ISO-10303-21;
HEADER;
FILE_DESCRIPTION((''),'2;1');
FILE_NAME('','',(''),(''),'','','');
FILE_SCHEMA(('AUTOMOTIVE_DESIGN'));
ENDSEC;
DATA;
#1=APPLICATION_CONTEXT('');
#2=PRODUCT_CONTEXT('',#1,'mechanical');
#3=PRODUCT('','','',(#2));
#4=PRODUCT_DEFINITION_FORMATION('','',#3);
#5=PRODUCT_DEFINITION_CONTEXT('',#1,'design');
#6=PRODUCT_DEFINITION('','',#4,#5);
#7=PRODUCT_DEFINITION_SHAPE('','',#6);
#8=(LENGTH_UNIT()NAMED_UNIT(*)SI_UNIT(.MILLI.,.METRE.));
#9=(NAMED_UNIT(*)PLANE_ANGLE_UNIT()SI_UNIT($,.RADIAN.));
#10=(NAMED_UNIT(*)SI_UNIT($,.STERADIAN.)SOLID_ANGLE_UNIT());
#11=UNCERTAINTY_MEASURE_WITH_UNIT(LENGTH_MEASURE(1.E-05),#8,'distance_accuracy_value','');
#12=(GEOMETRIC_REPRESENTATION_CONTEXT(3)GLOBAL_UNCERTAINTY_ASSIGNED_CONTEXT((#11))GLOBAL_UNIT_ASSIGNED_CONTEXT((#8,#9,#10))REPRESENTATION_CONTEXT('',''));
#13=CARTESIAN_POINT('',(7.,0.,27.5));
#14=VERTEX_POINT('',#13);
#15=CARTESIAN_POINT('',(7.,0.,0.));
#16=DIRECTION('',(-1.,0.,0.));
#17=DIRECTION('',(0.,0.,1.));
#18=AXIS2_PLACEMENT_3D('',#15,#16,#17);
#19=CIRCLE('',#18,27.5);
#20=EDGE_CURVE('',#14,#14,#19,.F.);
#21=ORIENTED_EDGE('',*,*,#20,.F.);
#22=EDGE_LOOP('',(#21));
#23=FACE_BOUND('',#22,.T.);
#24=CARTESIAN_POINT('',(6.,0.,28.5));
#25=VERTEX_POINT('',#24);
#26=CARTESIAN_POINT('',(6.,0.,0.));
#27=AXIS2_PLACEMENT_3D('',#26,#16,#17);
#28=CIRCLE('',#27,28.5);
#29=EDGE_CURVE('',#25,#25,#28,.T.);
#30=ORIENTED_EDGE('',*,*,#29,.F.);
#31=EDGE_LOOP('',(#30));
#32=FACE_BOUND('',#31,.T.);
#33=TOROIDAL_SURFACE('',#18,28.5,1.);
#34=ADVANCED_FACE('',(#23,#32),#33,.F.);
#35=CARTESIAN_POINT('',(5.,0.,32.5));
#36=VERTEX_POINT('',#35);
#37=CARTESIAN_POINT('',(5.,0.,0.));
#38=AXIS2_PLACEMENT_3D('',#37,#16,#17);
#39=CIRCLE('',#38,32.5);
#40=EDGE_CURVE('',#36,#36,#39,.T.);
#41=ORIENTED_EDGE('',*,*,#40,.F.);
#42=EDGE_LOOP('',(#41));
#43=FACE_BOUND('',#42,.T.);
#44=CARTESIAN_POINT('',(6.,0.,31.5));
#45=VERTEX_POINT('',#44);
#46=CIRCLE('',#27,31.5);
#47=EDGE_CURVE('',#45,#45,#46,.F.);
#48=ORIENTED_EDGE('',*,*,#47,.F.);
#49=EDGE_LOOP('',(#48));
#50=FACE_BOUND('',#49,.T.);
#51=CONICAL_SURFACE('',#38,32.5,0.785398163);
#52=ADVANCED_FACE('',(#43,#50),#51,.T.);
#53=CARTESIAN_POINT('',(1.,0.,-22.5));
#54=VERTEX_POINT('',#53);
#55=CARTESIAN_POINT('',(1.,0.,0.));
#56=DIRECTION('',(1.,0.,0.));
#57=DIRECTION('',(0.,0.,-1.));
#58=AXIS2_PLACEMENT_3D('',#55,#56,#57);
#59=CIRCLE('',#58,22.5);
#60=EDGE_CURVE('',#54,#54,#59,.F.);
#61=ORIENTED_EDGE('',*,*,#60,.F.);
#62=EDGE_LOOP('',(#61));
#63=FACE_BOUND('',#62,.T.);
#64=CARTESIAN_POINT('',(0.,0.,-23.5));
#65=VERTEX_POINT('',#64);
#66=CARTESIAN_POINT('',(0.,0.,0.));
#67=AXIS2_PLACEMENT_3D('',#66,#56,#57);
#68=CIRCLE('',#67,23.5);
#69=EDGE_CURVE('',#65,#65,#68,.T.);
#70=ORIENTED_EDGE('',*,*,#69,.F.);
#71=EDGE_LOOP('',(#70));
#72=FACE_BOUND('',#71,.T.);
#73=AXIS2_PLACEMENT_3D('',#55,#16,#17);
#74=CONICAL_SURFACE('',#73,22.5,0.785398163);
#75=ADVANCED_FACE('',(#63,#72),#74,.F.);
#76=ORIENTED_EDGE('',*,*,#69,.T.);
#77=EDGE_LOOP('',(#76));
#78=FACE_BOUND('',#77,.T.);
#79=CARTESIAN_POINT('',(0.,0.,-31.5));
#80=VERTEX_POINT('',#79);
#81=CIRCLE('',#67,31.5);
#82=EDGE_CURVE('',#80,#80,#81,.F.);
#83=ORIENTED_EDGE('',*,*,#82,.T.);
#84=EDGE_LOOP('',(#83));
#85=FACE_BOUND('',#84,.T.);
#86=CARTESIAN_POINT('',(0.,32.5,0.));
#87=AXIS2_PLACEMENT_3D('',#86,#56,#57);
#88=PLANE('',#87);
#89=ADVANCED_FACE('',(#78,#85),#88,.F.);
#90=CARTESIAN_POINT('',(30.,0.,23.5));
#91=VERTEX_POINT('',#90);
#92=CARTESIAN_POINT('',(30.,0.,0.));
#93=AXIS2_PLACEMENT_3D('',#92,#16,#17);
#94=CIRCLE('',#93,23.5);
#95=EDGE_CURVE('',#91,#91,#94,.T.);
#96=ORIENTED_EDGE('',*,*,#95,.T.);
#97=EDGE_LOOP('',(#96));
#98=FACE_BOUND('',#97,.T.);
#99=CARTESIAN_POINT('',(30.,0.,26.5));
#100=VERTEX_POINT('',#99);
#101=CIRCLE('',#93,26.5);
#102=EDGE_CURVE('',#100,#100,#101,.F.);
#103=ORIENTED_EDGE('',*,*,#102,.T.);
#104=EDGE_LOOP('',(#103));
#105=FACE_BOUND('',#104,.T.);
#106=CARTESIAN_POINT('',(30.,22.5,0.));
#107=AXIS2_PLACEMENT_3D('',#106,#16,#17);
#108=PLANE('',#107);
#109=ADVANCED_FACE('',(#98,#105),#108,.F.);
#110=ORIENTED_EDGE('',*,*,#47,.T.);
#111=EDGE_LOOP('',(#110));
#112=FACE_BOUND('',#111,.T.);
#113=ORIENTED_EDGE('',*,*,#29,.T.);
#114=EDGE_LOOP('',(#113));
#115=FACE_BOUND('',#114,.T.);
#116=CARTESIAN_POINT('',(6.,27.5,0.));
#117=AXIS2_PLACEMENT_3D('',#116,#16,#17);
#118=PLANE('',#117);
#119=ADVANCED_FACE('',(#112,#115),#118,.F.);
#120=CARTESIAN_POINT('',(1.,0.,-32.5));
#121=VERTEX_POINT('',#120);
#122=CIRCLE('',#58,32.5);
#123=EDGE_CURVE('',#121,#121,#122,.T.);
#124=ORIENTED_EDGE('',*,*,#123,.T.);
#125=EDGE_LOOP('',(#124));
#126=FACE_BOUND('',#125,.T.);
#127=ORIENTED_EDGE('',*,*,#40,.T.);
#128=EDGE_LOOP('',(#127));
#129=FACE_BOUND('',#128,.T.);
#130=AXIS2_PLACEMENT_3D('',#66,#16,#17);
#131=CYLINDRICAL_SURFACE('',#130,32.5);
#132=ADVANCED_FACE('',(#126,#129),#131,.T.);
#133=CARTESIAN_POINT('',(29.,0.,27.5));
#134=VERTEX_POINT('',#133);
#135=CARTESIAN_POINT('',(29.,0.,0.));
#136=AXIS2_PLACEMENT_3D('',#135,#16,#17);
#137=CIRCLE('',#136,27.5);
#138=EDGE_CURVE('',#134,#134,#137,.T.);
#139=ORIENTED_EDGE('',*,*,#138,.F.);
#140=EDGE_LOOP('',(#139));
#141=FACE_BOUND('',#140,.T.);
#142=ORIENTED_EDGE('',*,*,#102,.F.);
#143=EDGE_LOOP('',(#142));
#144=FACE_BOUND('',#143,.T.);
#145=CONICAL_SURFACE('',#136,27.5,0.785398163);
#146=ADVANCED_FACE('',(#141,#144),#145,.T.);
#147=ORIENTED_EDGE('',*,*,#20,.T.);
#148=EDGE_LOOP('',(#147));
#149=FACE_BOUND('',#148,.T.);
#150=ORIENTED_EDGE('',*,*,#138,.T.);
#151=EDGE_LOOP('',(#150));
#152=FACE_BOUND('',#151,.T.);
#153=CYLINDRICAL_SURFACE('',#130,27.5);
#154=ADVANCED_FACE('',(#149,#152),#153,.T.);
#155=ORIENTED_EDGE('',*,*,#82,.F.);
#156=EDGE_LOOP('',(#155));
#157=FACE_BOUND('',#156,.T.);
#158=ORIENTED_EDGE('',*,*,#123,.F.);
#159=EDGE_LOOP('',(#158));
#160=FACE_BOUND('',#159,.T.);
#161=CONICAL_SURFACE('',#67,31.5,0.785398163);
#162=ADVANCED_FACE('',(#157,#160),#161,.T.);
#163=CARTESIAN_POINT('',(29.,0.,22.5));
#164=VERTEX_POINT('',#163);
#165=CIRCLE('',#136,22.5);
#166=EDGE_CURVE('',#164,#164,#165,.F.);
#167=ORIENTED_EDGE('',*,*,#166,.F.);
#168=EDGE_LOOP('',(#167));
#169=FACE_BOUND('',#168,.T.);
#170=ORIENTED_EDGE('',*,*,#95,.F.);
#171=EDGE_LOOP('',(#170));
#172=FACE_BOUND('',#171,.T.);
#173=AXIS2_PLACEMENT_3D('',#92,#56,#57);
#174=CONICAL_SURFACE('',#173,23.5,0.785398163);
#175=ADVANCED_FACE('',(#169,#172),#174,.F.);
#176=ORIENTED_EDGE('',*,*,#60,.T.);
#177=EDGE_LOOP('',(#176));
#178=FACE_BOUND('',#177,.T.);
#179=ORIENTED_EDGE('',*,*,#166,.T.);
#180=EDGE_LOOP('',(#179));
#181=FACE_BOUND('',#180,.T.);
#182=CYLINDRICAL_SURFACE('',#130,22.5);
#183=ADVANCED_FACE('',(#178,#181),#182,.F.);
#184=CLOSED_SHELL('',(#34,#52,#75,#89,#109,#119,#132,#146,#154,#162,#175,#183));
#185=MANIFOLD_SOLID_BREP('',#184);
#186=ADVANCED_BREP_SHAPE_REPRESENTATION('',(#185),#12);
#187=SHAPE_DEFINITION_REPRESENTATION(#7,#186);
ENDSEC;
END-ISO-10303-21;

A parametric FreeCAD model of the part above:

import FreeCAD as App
import Part
import Sketcher
Q = App.Units.Quantity


def edges_at(feature, points):
    """Names of the edges that pass closest to the given points."""
    edges = feature.Shape.Edges
    near = lambda p: min(range(len(edges)), key=lambda i: edges[i].distToShape(Part.Vertex(*p))[0])
    return sorted({f"Edge{near(p) + 1}" for p in points})


def add_polygon(sketch, points):
    """Adds a closed chain of lines whose ends are joined by coincident constraints."""
    first, n = sketch.GeometryCount, len(points)
    for a, b in zip(points, points[1:] + points[:1]):
        sketch.addGeometry(Part.LineSegment(App.Vector(*a, 0), App.Vector(*b, 0)), False)
    for i in range(n):
        sketch.addConstraint(Sketcher.Constraint("Coincident", first + i, 2, first + (i + 1) % n, 1))

doc = App.newDocument("Part")
body = doc.addObject("PartDesign::Body", "Body")

# Sketch on XY plane
sketch1 = doc.addObject("Sketcher::SketchObject", "Sketch")
body.addObject(sketch1)
sketch1.AttachmentSupport = (doc.XY_Plane, [""])
sketch1.MapMode = "FlatFace"
add_polygon(sketch1, [(0, 22), (30, 22), (30, 28), (6, 28), (6, 32), (0, 32)])  # lines 0-5
sketch1.addConstraint([
    Sketcher.Constraint("Horizontal", 0),
    Sketcher.Constraint("Vertical", 1),
    Sketcher.Constraint("Horizontal", 2),
    Sketcher.Constraint("Vertical", 3),
    Sketcher.Constraint("Horizontal", 4),
    Sketcher.Constraint("Vertical", 5),
    Sketcher.Constraint("PointOnObject", 4, 2, -2),
    Sketcher.Constraint("Equal", 1, 3),
    Sketcher.Constraint("DistanceX", 0, 1, 0, 2, Q("30 mm")),
    Sketcher.Constraint("DistanceX", 2, 2, 2, 1, Q("24 mm")),
    Sketcher.Constraint("DistanceY", 1, 1, 1, 2, Q("5 mm")),
    Sketcher.Constraint("DistanceY", -1, 1, 0, 2, Q("22.5 mm")),
])
revolution = doc.addObject("PartDesign::Revolution", "Revolution")
body.addObject(revolution)
revolution.Profile = sketch1
revolution.ReferenceAxis = (sketch1, ["H_Axis"])
revolution.Angle = 360
doc.recompute()

chamfer = doc.addObject("PartDesign::Chamfer", "Chamfer")
body.addObject(chamfer)
chamfer.Base = (revolution, edges_at(revolution, [
    (0, 0, -32.5),
    (6, 0, -32.5),
    (30, 0, -27.5),
    (30, 0, -22.5),
    (0, 0, -22.5),
]))
chamfer.Size = 1
doc.recompute()

fillet = doc.addObject("PartDesign::Fillet", "Fillet")
body.addObject(fillet)
fillet.Base = (chamfer, edges_at(chamfer, [(6, 0, -27.5)]))
fillet.Radius = 1

doc.recompute()
